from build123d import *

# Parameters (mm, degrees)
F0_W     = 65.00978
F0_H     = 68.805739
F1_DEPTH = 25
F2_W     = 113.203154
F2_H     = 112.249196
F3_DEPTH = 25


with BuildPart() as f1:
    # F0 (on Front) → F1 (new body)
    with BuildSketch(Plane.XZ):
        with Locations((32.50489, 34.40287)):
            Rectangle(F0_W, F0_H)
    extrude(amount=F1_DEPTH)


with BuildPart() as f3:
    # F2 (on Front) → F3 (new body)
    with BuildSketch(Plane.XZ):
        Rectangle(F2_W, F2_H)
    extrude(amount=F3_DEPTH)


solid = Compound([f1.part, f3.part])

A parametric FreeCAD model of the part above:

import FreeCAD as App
import Part
import Sketcher
from FreeCAD import Vector


def add_polygon(sketch, points):
    """Adds a closed chain of lines whose ends are joined by coincident constraints."""
    first, n = sketch.GeometryCount, len(points)
    for a, b in zip(points, points[1:] + points[:1]):
        sketch.addGeometry(Part.LineSegment(App.Vector(*a, 0), App.Vector(*b, 0)), False)
    for i in range(n):
        sketch.addConstraint(Sketcher.Constraint("Coincident", first + i, 2, first + (i + 1) % n, 1))

doc = App.newDocument("Part")
body = doc.addObject("PartDesign::Body", "Body")

sketch1 = doc.addObject("Sketcher::SketchObject", "Sketch")
body.addObject(sketch1)
sketch1.AttachmentSupport = (doc.XZ_Plane, [""])
sketch1.MapMode = "FlatFace"
add_polygon(sketch1, [(0, 69), (0, 0), (65, 0), (65, 69)])
sketch1.addConstraint([
    Sketcher.Constraint("Vertical", 0),
    Sketcher.Constraint("Horizontal", 1),
    Sketcher.Constraint("Vertical", 2),
    Sketcher.Constraint("Horizontal", 3),
    Sketcher.Constraint("Coincident", 0, 2, -1, 1),
    Sketcher.Constraint("DistanceX", 1, 1, 1, 2, 65.00978),
    Sketcher.Constraint("DistanceY", 0, 2, 0, 1, 68.805739),
])
pad1 = doc.addObject("PartDesign::Pad", "Pad")
body.addObject(pad1)
pad1.Profile = sketch1
pad1.Length = 25
body2 = doc.addObject("PartDesign::Body", "Body001")

sketch2 = doc.addObject("Sketcher::SketchObject", "Sketch001")
body2.addObject(sketch2)
sketch2.AttachmentSupport = (doc.getObject("XZ_Plane001"), [""])
sketch2.MapMode = "FlatFace"
add_polygon(sketch2, [(-57, 56), (-57, -56), (57, -56), (57, 56)])
sketch2.addConstraint([
    Sketcher.Constraint("Vertical", 0),
    Sketcher.Constraint("Horizontal", 1),
    Sketcher.Constraint("Vertical", 2),
    Sketcher.Constraint("Horizontal", 3),
    Sketcher.Constraint("Symmetric", 0, 2, 2, 2, -1, 1),
    Sketcher.Constraint("DistanceX", 1, 1, 1, 2, 113.203154),
    Sketcher.Constraint("DistanceY", 0, 2, 0, 1, 112.249196),
])
pad2 = doc.addObject("PartDesign::Pad", "Pad001")
body2.addObject(pad2)
pad2.Profile = sketch2
pad2.Length = 25

doc.recompute()
